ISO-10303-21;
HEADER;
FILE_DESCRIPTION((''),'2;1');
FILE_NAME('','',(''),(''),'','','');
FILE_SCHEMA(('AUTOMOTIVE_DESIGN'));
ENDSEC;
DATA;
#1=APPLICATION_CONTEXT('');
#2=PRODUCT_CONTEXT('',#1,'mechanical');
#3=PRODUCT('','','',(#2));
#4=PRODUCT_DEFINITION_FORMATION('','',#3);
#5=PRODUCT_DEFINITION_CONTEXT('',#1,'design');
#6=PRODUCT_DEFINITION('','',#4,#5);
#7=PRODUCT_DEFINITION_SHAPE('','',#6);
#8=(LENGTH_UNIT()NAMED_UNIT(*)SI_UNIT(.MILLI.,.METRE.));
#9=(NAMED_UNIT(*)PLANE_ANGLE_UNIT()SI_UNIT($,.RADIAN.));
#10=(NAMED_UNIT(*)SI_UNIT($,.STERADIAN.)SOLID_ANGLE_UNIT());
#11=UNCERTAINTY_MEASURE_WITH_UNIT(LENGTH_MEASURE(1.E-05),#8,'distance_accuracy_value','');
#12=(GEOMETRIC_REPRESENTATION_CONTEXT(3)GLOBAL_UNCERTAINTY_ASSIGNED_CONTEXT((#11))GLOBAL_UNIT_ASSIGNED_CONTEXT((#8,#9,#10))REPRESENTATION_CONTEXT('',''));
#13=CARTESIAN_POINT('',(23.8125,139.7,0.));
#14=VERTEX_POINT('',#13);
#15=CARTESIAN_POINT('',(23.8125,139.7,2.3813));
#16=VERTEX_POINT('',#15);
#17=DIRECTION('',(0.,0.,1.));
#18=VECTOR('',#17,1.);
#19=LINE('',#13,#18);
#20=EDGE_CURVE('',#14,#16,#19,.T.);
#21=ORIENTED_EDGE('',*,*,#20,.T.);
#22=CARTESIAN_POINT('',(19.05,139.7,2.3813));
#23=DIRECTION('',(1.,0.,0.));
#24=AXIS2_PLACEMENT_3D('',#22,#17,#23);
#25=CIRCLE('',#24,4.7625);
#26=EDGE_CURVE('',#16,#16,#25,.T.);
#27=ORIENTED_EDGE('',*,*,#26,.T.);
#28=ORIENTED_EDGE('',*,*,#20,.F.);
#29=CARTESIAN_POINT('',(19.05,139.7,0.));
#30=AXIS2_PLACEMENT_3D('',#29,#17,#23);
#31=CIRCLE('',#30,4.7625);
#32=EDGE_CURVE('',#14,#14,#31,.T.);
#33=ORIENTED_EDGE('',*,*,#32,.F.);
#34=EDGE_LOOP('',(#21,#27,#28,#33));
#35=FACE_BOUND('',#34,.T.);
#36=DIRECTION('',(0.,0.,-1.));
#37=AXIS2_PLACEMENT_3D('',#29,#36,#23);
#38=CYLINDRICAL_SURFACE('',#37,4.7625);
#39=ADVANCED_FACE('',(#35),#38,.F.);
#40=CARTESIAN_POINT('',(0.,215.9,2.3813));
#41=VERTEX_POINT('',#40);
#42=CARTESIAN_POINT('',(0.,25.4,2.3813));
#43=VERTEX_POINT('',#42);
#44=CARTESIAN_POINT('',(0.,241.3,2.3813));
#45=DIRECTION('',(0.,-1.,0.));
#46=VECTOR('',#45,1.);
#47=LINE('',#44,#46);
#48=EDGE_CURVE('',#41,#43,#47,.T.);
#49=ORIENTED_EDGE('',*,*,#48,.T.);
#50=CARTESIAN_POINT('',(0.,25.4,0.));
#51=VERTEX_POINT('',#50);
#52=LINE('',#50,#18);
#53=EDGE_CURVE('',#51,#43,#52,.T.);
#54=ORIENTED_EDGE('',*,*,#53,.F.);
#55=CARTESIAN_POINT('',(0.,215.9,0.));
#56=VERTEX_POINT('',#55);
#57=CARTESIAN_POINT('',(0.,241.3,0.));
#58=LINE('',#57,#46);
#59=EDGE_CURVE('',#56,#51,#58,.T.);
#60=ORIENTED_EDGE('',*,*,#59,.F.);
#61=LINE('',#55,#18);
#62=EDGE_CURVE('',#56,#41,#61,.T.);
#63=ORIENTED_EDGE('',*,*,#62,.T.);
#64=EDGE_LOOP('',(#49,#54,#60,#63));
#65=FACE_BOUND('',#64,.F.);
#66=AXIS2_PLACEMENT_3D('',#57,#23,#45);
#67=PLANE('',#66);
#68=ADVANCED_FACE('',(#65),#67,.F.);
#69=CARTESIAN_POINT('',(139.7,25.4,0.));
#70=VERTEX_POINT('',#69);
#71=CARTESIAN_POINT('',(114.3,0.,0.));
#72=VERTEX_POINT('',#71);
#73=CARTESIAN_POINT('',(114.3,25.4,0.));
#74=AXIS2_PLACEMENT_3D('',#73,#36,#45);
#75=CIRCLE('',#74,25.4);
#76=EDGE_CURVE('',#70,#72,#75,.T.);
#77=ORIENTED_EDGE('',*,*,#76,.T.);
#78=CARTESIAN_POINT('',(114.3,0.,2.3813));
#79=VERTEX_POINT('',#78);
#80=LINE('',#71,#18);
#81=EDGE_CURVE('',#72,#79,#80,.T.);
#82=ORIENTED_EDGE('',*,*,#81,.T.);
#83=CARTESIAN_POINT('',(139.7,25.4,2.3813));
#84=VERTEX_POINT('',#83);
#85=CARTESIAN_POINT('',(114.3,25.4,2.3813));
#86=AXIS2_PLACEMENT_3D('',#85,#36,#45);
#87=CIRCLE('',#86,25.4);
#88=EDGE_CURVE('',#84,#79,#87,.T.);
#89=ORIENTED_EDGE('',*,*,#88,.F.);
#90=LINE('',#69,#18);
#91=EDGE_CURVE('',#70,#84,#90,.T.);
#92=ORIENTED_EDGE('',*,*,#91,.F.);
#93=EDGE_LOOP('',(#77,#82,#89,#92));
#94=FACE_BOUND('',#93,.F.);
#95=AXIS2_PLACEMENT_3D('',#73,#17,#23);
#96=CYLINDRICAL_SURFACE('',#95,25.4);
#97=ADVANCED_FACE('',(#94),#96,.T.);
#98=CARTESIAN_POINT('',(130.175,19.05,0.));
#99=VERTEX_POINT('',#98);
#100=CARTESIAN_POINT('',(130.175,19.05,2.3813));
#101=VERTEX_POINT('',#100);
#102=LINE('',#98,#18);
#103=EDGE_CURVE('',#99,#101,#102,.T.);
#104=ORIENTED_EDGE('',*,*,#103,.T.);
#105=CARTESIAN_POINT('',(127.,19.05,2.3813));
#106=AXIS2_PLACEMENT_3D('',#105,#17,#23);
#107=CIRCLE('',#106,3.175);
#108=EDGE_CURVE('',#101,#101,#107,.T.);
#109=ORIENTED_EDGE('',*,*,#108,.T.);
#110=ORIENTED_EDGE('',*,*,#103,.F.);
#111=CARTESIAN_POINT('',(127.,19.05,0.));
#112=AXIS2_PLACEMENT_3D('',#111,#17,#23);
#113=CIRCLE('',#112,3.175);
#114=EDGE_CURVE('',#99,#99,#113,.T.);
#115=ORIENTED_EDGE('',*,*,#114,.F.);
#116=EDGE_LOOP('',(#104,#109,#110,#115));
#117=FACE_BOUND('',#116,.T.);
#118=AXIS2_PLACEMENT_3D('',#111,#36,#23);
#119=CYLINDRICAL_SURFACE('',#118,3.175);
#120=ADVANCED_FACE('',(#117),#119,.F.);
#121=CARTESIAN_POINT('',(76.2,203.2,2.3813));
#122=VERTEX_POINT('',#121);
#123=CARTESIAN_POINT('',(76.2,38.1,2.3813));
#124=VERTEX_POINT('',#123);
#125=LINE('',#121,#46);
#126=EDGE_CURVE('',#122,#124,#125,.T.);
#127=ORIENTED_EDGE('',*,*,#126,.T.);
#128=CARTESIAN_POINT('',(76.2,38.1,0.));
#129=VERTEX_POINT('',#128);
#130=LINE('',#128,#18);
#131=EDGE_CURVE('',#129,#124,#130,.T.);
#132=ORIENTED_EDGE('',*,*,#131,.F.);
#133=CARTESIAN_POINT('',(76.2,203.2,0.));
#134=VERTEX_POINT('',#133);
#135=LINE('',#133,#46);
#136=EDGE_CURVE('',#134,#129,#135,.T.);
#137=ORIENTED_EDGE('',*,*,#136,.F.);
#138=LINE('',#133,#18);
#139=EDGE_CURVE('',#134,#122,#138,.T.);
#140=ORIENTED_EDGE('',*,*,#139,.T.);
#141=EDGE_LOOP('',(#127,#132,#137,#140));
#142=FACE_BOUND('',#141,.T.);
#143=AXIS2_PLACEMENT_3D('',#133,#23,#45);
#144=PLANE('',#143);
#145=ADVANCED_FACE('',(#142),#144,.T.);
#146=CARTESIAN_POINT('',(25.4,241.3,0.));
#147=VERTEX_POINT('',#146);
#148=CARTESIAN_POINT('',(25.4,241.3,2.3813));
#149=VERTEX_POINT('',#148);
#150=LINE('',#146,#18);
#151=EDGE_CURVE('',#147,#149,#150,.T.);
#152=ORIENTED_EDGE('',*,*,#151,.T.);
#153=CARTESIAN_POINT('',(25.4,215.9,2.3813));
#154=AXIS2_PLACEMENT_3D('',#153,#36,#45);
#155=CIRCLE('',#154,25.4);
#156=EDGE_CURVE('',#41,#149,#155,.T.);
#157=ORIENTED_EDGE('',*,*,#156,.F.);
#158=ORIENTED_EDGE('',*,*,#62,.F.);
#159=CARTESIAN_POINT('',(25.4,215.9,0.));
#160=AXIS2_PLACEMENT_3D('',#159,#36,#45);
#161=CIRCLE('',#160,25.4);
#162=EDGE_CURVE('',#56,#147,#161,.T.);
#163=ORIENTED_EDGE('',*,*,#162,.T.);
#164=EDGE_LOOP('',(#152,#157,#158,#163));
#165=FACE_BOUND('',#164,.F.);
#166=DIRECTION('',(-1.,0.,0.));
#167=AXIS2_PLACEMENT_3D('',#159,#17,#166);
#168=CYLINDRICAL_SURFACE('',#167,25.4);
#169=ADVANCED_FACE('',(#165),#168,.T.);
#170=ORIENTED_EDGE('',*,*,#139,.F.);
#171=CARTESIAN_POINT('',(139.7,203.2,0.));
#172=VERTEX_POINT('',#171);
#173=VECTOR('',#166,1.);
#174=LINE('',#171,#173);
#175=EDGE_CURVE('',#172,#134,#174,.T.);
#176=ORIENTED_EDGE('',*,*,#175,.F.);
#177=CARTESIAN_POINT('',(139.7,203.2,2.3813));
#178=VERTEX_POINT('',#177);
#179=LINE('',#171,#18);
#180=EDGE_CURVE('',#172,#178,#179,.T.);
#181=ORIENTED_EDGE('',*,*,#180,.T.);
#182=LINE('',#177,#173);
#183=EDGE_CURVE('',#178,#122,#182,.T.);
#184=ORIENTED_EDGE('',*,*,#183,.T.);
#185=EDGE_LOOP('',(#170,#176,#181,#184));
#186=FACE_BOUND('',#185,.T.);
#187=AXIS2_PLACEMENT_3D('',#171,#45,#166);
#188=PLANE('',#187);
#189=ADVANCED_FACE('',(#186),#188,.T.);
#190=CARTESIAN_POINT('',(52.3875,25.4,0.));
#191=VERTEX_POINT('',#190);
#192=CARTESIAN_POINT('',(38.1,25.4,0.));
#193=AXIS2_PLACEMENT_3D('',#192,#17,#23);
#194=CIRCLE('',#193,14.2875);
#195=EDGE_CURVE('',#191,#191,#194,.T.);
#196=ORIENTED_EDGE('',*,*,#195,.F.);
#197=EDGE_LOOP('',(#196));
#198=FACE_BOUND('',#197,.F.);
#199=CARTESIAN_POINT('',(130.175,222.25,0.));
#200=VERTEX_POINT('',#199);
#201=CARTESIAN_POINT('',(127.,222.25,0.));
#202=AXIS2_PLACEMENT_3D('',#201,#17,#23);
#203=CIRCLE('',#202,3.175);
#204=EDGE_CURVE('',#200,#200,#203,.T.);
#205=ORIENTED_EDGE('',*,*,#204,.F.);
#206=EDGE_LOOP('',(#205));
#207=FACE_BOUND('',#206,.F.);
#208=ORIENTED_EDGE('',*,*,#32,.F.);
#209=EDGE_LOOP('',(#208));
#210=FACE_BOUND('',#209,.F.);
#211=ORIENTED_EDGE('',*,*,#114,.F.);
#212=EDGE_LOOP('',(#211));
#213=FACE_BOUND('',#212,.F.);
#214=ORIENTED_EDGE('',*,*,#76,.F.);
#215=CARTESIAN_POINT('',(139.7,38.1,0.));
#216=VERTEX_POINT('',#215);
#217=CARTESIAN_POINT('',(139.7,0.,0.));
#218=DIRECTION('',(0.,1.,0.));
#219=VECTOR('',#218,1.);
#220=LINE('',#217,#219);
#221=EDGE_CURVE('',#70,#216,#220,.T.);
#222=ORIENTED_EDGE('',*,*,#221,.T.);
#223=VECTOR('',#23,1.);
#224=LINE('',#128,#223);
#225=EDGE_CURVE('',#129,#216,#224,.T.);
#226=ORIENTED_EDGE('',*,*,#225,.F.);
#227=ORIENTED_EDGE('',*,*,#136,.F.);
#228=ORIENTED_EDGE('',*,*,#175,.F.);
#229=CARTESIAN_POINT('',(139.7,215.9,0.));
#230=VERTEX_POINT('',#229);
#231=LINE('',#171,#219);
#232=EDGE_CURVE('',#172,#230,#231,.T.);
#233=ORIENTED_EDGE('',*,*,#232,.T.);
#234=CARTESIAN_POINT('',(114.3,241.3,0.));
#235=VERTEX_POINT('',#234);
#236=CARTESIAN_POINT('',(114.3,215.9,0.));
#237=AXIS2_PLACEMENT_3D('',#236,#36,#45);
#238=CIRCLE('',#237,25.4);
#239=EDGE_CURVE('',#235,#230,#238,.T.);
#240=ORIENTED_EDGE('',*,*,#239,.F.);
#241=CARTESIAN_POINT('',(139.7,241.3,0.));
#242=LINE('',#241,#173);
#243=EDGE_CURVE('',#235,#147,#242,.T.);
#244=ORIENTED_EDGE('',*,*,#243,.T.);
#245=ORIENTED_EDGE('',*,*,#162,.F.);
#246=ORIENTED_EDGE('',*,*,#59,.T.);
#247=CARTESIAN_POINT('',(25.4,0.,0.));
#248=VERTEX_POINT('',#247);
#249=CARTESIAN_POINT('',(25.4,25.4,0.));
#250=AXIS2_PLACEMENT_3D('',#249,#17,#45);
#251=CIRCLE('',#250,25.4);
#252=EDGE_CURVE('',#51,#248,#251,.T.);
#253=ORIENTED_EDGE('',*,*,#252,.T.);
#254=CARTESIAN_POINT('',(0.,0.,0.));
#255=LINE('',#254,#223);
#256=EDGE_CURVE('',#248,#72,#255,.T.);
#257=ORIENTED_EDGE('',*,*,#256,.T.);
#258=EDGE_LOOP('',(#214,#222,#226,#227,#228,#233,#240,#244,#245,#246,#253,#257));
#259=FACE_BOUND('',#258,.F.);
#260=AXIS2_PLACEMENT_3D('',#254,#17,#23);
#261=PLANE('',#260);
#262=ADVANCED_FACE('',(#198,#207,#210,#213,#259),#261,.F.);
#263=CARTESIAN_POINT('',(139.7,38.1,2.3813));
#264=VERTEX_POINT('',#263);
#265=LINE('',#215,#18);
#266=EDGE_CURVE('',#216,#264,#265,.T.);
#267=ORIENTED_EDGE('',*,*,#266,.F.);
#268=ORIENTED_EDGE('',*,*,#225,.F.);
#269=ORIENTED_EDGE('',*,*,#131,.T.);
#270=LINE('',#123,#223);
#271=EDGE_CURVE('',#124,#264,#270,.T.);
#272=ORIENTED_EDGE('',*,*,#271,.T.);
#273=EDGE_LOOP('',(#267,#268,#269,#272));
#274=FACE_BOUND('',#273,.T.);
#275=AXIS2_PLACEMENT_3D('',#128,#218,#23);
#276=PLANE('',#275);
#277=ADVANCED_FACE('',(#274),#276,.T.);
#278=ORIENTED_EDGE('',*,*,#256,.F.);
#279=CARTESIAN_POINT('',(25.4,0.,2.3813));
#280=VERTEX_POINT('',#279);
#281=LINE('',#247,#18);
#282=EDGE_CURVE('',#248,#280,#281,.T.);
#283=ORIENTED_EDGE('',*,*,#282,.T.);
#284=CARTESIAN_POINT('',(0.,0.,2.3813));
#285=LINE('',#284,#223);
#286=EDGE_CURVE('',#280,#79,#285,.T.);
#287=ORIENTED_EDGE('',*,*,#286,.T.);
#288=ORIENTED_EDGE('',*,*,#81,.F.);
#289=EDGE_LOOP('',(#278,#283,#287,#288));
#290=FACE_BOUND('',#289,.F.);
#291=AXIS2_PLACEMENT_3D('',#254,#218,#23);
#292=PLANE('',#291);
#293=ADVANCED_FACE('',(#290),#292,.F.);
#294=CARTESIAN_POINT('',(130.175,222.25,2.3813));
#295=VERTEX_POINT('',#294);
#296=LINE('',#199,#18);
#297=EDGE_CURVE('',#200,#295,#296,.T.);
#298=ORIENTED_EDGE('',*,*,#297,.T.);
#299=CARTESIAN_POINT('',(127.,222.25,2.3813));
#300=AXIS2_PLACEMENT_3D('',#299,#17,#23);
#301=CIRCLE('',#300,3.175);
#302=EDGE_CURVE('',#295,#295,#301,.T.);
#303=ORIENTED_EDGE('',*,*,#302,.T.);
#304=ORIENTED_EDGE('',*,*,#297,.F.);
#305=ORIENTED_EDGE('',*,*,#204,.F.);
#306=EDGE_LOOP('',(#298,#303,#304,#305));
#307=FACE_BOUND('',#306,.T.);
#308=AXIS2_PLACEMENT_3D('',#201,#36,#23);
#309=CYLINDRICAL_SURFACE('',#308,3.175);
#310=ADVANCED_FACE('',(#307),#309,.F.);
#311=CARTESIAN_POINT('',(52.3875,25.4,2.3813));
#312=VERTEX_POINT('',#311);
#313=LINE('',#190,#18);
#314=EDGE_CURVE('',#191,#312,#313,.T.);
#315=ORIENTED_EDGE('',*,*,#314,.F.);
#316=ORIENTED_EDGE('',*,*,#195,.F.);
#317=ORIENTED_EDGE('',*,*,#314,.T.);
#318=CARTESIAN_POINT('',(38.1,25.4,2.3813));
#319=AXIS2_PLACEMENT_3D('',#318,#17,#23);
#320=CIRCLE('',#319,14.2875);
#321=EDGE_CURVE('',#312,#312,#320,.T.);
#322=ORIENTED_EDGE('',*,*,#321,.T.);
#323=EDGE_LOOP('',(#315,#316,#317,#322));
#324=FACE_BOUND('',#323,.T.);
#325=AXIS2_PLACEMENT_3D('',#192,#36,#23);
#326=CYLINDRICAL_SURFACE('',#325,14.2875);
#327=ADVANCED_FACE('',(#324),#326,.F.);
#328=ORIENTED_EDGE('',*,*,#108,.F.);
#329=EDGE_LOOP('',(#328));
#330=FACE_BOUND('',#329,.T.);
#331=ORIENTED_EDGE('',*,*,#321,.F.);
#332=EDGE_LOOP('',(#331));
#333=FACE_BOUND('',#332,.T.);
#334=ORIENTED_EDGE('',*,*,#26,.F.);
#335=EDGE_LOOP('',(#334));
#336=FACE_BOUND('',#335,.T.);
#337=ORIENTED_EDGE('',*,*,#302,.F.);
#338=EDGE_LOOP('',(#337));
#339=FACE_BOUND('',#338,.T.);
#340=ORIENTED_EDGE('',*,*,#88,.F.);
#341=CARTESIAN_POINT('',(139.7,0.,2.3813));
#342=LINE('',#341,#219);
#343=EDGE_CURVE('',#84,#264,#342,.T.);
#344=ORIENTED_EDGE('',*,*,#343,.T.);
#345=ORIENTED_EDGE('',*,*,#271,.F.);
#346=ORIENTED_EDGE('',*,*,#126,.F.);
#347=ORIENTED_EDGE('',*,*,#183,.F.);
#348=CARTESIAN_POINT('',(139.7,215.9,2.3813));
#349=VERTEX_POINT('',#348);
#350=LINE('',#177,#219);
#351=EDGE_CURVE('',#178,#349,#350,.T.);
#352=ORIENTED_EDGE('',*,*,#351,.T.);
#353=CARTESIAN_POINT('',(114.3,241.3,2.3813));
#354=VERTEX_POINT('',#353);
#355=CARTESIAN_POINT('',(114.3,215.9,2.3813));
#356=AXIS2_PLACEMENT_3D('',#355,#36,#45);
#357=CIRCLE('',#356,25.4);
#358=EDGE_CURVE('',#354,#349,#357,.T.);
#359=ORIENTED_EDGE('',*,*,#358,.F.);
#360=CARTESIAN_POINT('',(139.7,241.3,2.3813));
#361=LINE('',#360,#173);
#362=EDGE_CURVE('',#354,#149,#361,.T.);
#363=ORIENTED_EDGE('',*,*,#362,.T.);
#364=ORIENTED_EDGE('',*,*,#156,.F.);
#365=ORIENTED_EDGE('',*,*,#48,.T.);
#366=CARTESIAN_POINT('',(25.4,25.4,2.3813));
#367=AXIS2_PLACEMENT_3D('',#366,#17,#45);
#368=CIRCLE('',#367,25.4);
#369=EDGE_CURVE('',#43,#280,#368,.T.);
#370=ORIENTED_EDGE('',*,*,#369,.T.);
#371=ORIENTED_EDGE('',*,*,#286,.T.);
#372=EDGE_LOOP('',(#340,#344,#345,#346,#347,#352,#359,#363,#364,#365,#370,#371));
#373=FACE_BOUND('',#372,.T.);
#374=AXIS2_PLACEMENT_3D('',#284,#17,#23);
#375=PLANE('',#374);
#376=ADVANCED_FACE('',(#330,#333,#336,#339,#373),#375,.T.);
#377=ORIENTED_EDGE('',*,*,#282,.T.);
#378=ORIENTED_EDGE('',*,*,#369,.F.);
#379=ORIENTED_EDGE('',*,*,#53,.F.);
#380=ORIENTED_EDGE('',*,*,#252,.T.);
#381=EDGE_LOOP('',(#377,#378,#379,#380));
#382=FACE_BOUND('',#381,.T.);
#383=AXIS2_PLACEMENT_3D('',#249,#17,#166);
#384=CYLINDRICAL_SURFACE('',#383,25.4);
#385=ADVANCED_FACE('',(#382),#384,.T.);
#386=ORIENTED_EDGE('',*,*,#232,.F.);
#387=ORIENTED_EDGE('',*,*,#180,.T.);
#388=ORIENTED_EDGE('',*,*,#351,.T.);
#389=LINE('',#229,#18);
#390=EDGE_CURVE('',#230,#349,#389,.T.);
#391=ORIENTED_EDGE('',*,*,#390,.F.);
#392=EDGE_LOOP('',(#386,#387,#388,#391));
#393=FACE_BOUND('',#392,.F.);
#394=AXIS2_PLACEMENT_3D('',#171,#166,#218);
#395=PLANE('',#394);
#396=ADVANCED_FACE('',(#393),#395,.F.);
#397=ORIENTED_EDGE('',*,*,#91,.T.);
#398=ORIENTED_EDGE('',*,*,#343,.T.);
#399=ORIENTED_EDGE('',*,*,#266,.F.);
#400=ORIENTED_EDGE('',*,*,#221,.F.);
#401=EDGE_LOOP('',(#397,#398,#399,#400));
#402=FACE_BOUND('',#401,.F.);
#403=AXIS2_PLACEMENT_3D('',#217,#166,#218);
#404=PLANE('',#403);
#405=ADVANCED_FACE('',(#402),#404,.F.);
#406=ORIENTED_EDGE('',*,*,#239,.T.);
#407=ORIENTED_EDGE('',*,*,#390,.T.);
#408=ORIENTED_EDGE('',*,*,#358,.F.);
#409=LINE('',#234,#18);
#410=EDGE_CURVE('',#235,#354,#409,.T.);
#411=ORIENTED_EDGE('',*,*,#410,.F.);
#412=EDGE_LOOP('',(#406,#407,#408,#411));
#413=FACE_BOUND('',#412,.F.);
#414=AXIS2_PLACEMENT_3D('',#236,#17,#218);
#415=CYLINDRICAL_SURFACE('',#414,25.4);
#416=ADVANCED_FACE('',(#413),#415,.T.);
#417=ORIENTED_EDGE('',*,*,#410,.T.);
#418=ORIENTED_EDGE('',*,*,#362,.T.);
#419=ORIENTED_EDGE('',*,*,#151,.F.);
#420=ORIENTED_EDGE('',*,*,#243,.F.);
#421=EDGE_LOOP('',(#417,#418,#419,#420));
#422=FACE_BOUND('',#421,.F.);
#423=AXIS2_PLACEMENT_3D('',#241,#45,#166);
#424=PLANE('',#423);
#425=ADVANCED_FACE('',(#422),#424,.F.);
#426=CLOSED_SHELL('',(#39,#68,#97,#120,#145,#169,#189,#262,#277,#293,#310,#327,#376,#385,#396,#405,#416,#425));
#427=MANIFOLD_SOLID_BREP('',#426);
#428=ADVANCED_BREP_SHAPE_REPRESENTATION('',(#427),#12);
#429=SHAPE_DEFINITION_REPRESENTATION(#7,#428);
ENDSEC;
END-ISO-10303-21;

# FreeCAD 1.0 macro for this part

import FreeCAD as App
import Part
import Sketcher

V = App.Vector
Q = App.Units.Quantity


def edges_at(feature, points):
    """Names of the edges that pass closest to the given points."""
    edges = feature.Shape.Edges
    near = lambda p: min(range(len(edges)), key=lambda i: edges[i].distToShape(Part.Vertex(*p))[0])
    return sorted({f"Edge{near(p) + 1}" for p in points})


def add_polygon(sketch, points):
    """Adds a closed chain of lines whose ends are joined by coincident constraints."""
    first, n = sketch.GeometryCount, len(points)
    for a, b in zip(points, points[1:] + points[:1]):
        sketch.addGeometry(Part.LineSegment(App.Vector(*a, 0), App.Vector(*b, 0)), False)
    for i in range(n):
        sketch.addConstraint(Sketcher.Constraint("Coincident", first + i, 2, first + (i + 1) % n, 1))

doc = App.newDocument("Part")
params = doc.addObject("Spreadsheet::Sheet", "Params")
for row, (alias, value) in enumerate([
    ("sketch1_diameter", "0.25 in"),
    ("sketch1_diameter2", "1.125 in"),
    ("sketch1_diameter3", "0.375 in"),
    ("sketch1_width", "5.5 in"),
    ("sketch1_width2", "2.5 in"),
    ("pad1_length", "0.093752 in"),
    ("fillet_radius", "1 in"),
], start=1):
    params.set(f"A{row}", alias)
    params.set(f"B{row}", "=" + value)
    params.setAlias(f"B{row}", alias)

body = doc.addObject("PartDesign::Body", "Body")

# Sketch on XY plane
sketch1 = body.newObject("Sketcher::SketchObject", "Sketch")
sketch1.AttachmentSupport = (doc.getObject("XY_Plane"), [""])
sketch1.MapMode = "FlatFace"
add_polygon(sketch1, [(0, 241.3), (0, 0), (139.7, 0), (139.7, 38.1), (76.2, 38.1), (76.2, 203.2), (139.7, 203.2), (139.7, 241.3)])  # lines 0-7
sketch1.addGeometry(Part.Circle(V(38.1, 25.4, 0), V(0, 0, 1), 14.3), False)  # 8
sketch1.addGeometry(Part.Circle(V(127, 19.1, 0), V(0, 0, 1), 3.2), False)  # 9
sketch1.addGeometry(Part.Circle(V(19.1, 139.7, 0), V(0, 0, 1), 4.8), False)  # 10
sketch1.addGeometry(Part.Circle(V(127, 222.2, 0), V(0, 0, 1), 3.2), False)  # 11
sketch1.addConstraint([
    Sketcher.Constraint("Vertical", 0),
    Sketcher.Constraint("Horizontal", 1),
    Sketcher.Constraint("Vertical", 2),
    Sketcher.Constraint("Horizontal", 3),
    Sketcher.Constraint("Vertical", 4),
    Sketcher.Constraint("Horizontal", 5),
    Sketcher.Constraint("Vertical", 6),
    Sketcher.Constraint("Horizontal", 7),
    Sketcher.Constraint("Coincident", 0, 2, -1, 1),
    Sketcher.Constraint("Equal", 9, 11),
    Sketcher.Constraint("Vertical", 9, 3, 11, 3),
    Sketcher.Constraint("Vertical", 2, 2, 5, 2),
    Sketcher.Constraint("Equal", 2, 6),
    Sketcher.Constraint("Diameter", 9, Q("0.25 in")),
    Sketcher.Constraint("Diameter", 8, Q("1.125 in")),
    Sketcher.Constraint("Diameter", 10, Q("0.375 in")),
    Sketcher.Constraint("DistanceX", 1, 1, 1, 2, Q("5.5 in")),
    Sketcher.Constraint("DistanceX", 3, 2, 3, 1, Q("2.5 in")),
    Sketcher.Constraint("DistanceY", 0, 2, 0, 1, Q("9.5 in")),
    Sketcher.Constraint("DistanceY", 2, 1, 2, 2, Q("1.5 in")),
    Sketcher.Constraint("DistanceY", -1, 1, 8, 3, Q("1 in")),
    Sketcher.Constraint("DistanceX", 8, 3, 1, 2, Q("4 in")),
    Sketcher.Constraint("DistanceY", 2, 2, 10, 3, Q("4 in")),
    Sketcher.Constraint("DistanceX", 9, 3, 1, 2, Q("0.5 in")),
    Sketcher.Constraint("DistanceY", -1, 1, 9, 3, Q("0.75 in")),
    Sketcher.Constraint("DistanceX", -1, 1, 10, 3, Q("0.75 in")),
    Sketcher.Constraint("DistanceY", 4, 2, 11, 3, Q("0.75 in")),
])
sketch1.setExpression("Constraints[21]", "Params.sketch1_diameter")
sketch1.setExpression("Constraints[22]", "Params.sketch1_diameter2")
sketch1.setExpression("Constraints[23]", "Params.sketch1_diameter3")
sketch1.setExpression("Constraints[24]", "Params.sketch1_width")
sketch1.setExpression("Constraints[25]", "Params.sketch1_width2")
pad1 = body.newObject("PartDesign::Pad", "Pad")
pad1.Profile = sketch1
pad1.setExpression("Length", "Params.pad1_length")
doc.recompute()

fillet = body.newObject("PartDesign::Fillet", "Fillet")
fillet.Base = (pad1, edges_at(pad1, [
    (0, 241.3, 1.191),
    (139.7, 241.3, 1.191),
    (0, 0, 1.191),
    (139.7, 0, 1.191),
]))
fillet.setExpression("Radius", "Params.fillet_radius")

doc.recompute()
